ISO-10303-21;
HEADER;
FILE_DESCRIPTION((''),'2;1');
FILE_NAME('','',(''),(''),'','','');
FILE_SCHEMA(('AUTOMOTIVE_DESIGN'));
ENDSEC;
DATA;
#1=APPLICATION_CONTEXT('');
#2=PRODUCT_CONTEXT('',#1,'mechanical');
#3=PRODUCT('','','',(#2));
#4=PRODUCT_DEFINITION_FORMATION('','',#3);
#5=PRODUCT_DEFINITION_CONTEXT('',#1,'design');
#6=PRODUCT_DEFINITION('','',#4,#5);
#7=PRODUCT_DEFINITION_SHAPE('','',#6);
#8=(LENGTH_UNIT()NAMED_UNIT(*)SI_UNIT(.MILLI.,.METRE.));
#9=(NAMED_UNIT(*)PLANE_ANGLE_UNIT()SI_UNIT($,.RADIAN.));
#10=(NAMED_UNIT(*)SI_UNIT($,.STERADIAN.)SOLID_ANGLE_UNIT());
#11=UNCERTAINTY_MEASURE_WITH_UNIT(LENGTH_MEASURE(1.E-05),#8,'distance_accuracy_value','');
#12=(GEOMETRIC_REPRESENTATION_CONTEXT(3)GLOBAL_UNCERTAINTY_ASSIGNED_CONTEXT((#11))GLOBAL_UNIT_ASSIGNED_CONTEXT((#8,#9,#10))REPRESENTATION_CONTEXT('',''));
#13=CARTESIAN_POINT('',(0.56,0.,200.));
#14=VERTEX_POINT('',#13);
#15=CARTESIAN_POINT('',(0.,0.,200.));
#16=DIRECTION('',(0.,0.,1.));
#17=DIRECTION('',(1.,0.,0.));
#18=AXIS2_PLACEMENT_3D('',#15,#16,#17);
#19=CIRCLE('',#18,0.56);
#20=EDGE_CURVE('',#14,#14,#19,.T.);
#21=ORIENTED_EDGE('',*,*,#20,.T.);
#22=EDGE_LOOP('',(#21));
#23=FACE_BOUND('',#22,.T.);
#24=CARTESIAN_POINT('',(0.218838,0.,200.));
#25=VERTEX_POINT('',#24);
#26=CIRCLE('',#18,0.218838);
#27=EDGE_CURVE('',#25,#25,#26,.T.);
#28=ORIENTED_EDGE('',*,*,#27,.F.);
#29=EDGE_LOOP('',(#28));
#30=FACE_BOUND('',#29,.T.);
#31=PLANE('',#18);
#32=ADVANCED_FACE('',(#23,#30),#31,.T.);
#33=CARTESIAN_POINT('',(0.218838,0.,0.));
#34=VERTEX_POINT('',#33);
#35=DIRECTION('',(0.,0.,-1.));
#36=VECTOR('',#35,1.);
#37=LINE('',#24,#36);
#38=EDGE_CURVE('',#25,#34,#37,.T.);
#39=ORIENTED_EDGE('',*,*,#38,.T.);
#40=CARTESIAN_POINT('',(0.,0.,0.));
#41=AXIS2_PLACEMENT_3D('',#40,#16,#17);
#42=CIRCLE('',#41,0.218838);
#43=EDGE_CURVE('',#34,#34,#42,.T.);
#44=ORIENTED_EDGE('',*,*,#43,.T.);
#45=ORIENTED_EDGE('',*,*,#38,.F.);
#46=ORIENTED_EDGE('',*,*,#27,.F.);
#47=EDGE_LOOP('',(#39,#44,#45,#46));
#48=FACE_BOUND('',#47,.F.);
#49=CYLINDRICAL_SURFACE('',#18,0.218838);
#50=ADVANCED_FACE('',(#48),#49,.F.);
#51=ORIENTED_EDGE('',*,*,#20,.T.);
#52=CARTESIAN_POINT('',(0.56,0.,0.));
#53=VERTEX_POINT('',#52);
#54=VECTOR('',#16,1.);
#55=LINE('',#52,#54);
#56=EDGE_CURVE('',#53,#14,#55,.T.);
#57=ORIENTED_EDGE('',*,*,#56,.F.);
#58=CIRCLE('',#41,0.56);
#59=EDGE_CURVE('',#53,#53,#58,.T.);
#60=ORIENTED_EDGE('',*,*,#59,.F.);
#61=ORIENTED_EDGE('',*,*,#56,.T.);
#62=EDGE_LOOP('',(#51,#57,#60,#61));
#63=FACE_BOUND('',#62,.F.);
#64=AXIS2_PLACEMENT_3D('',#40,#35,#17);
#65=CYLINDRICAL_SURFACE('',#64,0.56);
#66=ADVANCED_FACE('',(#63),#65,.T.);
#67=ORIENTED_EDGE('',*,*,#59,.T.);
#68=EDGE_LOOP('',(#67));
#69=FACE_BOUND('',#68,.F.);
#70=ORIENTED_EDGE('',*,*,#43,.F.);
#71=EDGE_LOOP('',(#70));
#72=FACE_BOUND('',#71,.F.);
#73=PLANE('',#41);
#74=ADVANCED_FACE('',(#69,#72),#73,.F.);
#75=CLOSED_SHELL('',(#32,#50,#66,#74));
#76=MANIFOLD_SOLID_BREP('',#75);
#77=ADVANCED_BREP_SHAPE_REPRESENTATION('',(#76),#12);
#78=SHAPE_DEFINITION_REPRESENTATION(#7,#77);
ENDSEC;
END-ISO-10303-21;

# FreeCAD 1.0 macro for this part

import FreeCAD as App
import Part
import Sketcher

doc = App.newDocument("Part")
params = doc.addObject("Spreadsheet::Sheet", "Params")
for row, (alias, value) in enumerate([
    ("sketch1_diameter", "1.12 mm"),
    ("pad1_length", "200 mm"),
], start=1):
    params.set(f"A{row}", alias)
    params.set(f"B{row}", "=" + value)
    params.setAlias(f"B{row}", alias)

body = doc.addObject("PartDesign::Body", "Body")

sketch1 = doc.addObject("Sketcher::SketchObject", "Sketch")
body.addObject(sketch1)
sketch1.AttachmentSupport = (doc.XY_Plane, [""])
sketch1.MapMode = "FlatFace"
sketch1.addGeometry(Part.Circle(App.Vector(0, 0, 0), App.Vector(0, 0, 1), 0.6), False)
sketch1.addConstraint(Sketcher.Constraint("Coincident", 0, 3, -1, 1))
sketch1.addConstraint(Sketcher.Constraint("Diameter", 0, 1.12))
sketch1.setExpression("Constraints[1]", "Params.sketch1_diameter")
pad1 = doc.addObject("PartDesign::Pad", "Pad")
body.addObject(pad1)
pad1.Profile = sketch1
pad1.setExpression("Length", "Params.pad1_length")

sketch2 = doc.addObject("Sketcher::SketchObject", "Sketch001")
body.addObject(sketch2)
sketch2.AttachmentSupport = (doc.XY_Plane, [""])
sketch2.MapMode = "FlatFace"
sketch2.AttachmentOffset = App.Placement(App.Vector(0, 0, 200), App.Rotation())
sketch2.addGeometry(Part.Circle(App.Vector(0, 0, 0), App.Vector(0, 0, 1), 0.22), False)
sketch2.addConstraint(Sketcher.Constraint("Coincident", 0, 3, -1, 1))
sketch2.addConstraint(Sketcher.Constraint("Diameter", 0, 0.437676))
pocket1 = doc.addObject("PartDesign::Pocket", "Pocket")
body.addObject(pocket1)
pocket1.Profile = sketch2
pocket1.Type = "ThroughAll"

doc.recompute()
